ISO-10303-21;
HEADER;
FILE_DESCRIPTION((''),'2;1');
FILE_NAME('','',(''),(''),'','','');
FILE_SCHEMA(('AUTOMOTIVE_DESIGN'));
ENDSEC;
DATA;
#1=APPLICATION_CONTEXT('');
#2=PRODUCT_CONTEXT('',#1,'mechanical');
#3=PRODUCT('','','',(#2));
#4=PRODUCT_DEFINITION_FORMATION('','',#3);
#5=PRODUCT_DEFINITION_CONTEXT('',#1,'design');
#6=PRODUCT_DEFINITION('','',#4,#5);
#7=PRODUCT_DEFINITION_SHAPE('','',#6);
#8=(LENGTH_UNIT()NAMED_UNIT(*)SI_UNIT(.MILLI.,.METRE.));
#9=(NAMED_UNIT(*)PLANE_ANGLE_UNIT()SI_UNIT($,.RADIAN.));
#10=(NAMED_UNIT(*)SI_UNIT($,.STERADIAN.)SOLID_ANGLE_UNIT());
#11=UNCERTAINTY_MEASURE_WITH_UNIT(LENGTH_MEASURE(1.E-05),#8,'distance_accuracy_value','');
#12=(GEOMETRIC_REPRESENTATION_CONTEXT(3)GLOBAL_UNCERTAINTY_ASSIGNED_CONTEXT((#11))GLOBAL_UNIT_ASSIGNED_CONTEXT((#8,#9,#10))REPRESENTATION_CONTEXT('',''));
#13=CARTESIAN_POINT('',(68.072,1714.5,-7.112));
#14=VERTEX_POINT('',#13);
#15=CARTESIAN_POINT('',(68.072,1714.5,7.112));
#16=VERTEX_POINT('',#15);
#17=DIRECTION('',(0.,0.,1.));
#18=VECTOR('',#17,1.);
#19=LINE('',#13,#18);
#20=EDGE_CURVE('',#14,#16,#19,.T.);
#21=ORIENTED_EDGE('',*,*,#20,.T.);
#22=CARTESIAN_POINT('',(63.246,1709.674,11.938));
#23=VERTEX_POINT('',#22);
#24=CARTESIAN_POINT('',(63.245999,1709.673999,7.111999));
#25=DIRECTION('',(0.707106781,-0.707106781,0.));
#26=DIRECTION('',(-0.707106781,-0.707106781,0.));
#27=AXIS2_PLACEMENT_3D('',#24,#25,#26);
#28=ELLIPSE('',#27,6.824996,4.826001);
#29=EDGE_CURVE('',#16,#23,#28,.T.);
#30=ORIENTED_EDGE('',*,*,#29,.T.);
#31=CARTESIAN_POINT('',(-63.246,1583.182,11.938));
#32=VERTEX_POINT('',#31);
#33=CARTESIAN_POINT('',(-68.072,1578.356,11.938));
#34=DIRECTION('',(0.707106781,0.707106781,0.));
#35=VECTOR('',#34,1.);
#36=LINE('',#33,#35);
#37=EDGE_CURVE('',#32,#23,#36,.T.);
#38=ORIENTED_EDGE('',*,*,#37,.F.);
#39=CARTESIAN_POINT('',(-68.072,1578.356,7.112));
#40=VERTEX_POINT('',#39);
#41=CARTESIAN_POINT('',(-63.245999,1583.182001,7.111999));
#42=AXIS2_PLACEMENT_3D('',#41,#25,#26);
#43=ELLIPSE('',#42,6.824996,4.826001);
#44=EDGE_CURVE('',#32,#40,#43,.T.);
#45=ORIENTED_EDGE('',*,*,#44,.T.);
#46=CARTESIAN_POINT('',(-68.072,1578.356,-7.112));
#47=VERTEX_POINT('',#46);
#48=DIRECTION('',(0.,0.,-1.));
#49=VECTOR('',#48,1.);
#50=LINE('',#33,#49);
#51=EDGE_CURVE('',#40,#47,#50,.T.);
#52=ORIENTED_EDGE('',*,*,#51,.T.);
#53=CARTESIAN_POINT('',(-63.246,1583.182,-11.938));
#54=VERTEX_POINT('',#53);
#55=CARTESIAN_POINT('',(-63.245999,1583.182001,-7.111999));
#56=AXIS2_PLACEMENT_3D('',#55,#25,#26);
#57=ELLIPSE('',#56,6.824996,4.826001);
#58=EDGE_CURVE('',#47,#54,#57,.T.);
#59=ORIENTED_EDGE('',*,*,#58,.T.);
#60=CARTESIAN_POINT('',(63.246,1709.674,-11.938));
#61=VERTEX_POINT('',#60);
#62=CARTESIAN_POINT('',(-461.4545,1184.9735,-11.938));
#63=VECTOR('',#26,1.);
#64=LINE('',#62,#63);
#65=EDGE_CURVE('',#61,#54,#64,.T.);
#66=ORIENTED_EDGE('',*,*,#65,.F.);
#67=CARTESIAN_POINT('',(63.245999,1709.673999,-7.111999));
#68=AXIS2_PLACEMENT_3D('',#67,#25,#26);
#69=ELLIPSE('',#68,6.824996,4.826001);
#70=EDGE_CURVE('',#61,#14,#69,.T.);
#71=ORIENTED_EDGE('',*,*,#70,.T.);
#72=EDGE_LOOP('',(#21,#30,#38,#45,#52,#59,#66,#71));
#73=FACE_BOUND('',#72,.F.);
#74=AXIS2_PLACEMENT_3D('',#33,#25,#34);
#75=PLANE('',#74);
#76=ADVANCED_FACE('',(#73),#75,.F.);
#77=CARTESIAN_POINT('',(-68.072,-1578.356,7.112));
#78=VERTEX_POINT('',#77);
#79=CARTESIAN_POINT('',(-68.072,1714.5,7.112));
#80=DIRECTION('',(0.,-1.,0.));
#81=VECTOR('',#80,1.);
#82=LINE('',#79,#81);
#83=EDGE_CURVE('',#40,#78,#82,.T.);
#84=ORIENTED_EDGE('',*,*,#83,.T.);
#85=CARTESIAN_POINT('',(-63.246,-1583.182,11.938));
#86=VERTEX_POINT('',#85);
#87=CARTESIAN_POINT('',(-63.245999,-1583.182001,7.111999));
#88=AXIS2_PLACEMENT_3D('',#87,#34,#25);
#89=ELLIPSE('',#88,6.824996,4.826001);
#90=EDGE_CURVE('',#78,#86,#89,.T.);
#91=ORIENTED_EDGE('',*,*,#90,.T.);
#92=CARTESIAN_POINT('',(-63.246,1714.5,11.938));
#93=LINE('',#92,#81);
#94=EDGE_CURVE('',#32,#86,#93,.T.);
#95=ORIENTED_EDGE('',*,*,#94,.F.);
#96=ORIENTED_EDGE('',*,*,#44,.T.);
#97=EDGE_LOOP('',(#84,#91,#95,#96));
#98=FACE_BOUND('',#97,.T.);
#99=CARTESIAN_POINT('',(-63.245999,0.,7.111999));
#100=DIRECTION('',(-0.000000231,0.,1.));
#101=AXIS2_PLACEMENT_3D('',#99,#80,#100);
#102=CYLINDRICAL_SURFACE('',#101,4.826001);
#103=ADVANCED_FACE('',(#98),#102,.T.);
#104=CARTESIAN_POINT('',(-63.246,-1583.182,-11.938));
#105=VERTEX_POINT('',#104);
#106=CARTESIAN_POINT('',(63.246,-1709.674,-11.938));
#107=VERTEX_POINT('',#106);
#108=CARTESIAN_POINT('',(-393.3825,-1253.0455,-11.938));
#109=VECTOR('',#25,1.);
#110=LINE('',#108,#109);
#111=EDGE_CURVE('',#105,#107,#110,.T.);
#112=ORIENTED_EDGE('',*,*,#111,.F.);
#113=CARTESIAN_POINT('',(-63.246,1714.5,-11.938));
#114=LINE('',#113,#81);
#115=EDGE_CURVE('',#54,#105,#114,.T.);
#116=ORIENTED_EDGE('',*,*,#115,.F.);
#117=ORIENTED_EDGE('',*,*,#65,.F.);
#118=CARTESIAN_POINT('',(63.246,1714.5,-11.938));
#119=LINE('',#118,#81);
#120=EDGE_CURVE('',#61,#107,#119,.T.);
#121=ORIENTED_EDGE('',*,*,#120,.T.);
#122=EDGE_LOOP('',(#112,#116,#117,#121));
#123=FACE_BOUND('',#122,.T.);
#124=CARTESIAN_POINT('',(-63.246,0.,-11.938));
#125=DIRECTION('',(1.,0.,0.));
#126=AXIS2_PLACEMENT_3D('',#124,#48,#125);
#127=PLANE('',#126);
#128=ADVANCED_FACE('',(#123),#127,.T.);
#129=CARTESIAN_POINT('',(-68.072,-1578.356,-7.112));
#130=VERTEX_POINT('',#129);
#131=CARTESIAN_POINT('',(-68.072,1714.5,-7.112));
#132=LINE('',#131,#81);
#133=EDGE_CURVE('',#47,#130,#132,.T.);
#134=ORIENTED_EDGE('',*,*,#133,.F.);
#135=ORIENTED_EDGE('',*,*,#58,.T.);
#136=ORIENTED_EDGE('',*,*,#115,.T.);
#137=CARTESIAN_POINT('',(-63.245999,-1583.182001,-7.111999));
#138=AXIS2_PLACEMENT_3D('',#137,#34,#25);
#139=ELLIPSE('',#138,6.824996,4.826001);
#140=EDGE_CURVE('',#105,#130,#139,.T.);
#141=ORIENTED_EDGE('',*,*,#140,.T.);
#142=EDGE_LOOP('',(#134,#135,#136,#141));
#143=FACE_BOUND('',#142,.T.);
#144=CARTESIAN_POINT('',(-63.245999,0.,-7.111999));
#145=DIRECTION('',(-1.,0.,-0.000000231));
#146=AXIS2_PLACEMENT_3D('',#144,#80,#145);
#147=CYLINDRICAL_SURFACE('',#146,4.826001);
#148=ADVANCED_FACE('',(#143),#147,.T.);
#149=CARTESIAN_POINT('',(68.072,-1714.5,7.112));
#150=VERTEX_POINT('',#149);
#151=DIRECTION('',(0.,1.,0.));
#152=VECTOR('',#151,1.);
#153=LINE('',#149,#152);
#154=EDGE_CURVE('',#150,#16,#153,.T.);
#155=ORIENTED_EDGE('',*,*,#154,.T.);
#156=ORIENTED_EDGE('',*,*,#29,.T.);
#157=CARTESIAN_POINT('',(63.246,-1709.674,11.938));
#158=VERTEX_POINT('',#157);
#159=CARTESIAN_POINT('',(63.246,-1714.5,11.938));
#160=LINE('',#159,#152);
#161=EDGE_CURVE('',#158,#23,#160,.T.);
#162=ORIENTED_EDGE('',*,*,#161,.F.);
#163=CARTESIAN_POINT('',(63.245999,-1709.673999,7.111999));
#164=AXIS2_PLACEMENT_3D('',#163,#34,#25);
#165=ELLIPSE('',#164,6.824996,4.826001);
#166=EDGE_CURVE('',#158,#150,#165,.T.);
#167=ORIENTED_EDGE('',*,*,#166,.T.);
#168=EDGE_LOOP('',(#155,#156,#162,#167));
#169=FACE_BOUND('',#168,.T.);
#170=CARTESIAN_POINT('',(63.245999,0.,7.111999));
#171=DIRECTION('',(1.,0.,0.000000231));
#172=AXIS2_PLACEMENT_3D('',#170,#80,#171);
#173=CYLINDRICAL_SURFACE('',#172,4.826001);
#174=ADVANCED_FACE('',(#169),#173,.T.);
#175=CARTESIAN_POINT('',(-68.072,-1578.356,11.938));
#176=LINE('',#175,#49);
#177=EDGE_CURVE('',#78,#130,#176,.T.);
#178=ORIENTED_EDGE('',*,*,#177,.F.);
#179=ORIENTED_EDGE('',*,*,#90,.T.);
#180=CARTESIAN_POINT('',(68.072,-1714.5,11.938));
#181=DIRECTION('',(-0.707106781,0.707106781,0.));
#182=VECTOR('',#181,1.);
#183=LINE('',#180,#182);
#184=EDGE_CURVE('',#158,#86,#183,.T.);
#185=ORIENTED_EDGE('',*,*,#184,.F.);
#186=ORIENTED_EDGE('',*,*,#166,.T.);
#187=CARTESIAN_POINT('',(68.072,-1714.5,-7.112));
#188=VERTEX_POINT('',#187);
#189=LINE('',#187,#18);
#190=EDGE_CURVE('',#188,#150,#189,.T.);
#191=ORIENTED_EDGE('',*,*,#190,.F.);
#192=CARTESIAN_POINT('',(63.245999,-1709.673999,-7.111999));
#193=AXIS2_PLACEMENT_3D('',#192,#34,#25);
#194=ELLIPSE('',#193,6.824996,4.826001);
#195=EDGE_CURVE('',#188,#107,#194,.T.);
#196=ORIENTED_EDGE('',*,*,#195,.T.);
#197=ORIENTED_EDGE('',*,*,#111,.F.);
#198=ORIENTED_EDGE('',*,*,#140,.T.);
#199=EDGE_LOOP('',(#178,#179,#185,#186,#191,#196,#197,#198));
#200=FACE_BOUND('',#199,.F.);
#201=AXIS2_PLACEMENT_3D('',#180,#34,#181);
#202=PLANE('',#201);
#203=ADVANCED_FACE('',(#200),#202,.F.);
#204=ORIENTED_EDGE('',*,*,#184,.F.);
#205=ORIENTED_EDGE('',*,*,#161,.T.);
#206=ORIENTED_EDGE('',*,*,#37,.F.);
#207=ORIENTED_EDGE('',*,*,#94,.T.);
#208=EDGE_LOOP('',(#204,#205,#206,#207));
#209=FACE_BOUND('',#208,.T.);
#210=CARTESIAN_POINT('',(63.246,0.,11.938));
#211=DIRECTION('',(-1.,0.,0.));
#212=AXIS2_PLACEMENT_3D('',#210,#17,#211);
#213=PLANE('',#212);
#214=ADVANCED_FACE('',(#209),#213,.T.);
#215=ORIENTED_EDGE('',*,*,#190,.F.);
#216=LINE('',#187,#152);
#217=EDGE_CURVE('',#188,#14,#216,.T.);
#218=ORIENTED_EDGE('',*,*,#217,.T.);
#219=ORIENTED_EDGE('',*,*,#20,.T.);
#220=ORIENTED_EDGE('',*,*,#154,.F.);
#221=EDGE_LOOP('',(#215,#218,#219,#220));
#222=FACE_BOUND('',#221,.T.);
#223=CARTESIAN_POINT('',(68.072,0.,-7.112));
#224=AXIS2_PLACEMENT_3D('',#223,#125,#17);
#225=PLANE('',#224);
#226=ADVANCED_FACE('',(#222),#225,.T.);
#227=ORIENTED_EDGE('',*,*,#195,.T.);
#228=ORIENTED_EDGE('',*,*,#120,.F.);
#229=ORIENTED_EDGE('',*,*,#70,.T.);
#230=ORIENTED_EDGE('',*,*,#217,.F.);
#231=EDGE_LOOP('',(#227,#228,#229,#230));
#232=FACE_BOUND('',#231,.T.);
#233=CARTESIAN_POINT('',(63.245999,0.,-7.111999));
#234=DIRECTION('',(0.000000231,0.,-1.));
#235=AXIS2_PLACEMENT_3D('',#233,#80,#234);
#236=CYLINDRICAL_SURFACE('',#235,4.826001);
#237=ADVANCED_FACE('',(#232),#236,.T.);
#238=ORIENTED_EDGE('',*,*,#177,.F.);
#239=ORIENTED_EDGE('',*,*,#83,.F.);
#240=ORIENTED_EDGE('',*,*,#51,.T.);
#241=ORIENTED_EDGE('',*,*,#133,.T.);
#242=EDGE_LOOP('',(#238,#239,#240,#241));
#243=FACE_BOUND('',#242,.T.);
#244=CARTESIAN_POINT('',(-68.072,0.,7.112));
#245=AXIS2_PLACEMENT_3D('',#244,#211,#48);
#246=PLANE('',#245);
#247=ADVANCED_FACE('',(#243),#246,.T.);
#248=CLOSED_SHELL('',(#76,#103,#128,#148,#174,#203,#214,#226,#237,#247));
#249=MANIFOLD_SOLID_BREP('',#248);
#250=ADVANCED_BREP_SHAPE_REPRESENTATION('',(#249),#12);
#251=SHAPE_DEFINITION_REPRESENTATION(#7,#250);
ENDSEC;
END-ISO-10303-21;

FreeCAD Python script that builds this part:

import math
import FreeCAD as App
import Part
import Sketcher

V = App.Vector
Q = App.Units.Quantity


def add_polygon(sketch, points):
    """Adds a closed chain of lines whose ends are joined by coincident constraints."""
    first, n = sketch.GeometryCount, len(points)
    for a, b in zip(points, points[1:] + points[:1]):
        sketch.addGeometry(Part.LineSegment(App.Vector(*a, 0), App.Vector(*b, 0)), False)
    for i in range(n):
        sketch.addConstraint(Sketcher.Constraint("Coincident", first + i, 2, first + (i + 1) % n, 1))

doc = App.newDocument("Part")
params = doc.addObject("Spreadsheet::Sheet", "Params")
for row, (alias, value) in enumerate([
    ("sketch1_radius", "0.19 in"),
    ("sketch1_width", "4.98 in"),
    ("sketch1_height", "0.56 in"),
    ("pad1_length", "135 in"),
    ("sketch2_width", "5.36 in"),
], start=1):
    params.set(f"A{row}", alias)
    params.set(f"B{row}", "=" + value)
    params.setAlias(f"B{row}", alias)

body = doc.addObject("PartDesign::Body", "Body")

sketch1 = body.newObject("Sketcher::SketchObject", "Sketch")
sketch1.AttachmentSupport = (doc.getObject("XZ_Plane"), [""])
sketch1.MapMode = "FlatFace"
sketch1.addGeometry(Part.LineSegment(V(63.2, 11.9, 0), V(-63.2, 11.9, 0)), False)
sketch1.addGeometry(Part.ArcOfCircle(Part.Circle(V(-63.2, 7.1, 0), V(0, 0, 1), 4.8), math.radians(90), math.radians(180)), False)
sketch1.addGeometry(Part.LineSegment(V(-68.1, 7.1, 0), V(-68.1, -7.1, 0)), False)
sketch1.addGeometry(Part.ArcOfCircle(Part.Circle(V(-63.2, -7.1, 0), V(0, 0, 1), 4.8), math.radians(-180), math.radians(-90)), False)
sketch1.addGeometry(Part.LineSegment(V(-63.2, -11.9, 0), V(63.2, -11.9, 0)), False)
sketch1.addGeometry(Part.ArcOfCircle(Part.Circle(V(63.2, -7.1, 0), V(0, 0, 1), 4.8), math.radians(-90), math.radians(0)), False)
sketch1.addGeometry(Part.LineSegment(V(68.1, -7.1, 0), V(68.1, 7.1, 0)), False)
sketch1.addGeometry(Part.ArcOfCircle(Part.Circle(V(63.2, 7.1, 0), V(0, 0, 1), 4.8), math.radians(0), math.radians(90)), False)
sketch1.addConstraint(Sketcher.Constraint("Tangent", 0, 2, 1, 1))
sketch1.addConstraint(Sketcher.Constraint("Tangent", 1, 2, 2, 1))
sketch1.addConstraint(Sketcher.Constraint("Tangent", 2, 2, 3, 1))
sketch1.addConstraint(Sketcher.Constraint("Tangent", 3, 2, 4, 1))
sketch1.addConstraint(Sketcher.Constraint("Tangent", 4, 2, 5, 1))
sketch1.addConstraint(Sketcher.Constraint("Tangent", 5, 2, 6, 1))
sketch1.addConstraint(Sketcher.Constraint("Tangent", 6, 2, 7, 1))
sketch1.addConstraint(Sketcher.Constraint("Tangent", 7, 2, 0, 1))
sketch1.addConstraint(Sketcher.Constraint("Horizontal", 0))
sketch1.addConstraint(Sketcher.Constraint("Vertical", 2))
sketch1.addConstraint(Sketcher.Constraint("Horizontal", 4))
sketch1.addConstraint(Sketcher.Constraint("Vertical", 6))
sketch1.addConstraint(Sketcher.Constraint("Equal", 1, 3))
sketch1.addConstraint(Sketcher.Constraint("Equal", 3, 5))
sketch1.addConstraint(Sketcher.Constraint("Equal", 5, 7))
sketch1.addConstraint(Sketcher.Constraint("Symmetric", 1, 3, 5, 3, -1, 1))
sketch1.addConstraint(Sketcher.Constraint("Radius", 1, Q("0.19 in")))
sketch1.addConstraint(Sketcher.Constraint("DistanceX", 0, 2, 0, 1, Q("4.98 in")))
sketch1.addConstraint(Sketcher.Constraint("DistanceY", 2, 2, 2, 1, Q("0.56 in")))
sketch1.setExpression("Constraints[16]", "Params.sketch1_radius")
sketch1.setExpression("Constraints[17]", "Params.sketch1_width")
sketch1.setExpression("Constraints[18]", "Params.sketch1_height")
pad1 = body.newObject("PartDesign::Pad", "Pad")
pad1.Profile = sketch1
pad1.setExpression("Length", "Params.pad1_length")
pad1.Midplane = True

sketch2 = body.newObject("Sketcher::SketchObject", "Sketch001")
sketch2.AttachmentSupport = (doc.getObject("XY_Plane"), [""])
sketch2.MapMode = "FlatFace"
sketch2.AttachmentOffset = App.Placement(V(0, 0, 0.47 * 25.4), App.Rotation())
add_polygon(sketch2, [(68, -1714), (-68, -1578), (-68, -1714)])
add_polygon(sketch2, [(-68, 1714), (-68, 1578), (68, 1714)])
sketch2.addConstraint(Sketcher.Constraint("Vertical", 1))
sketch2.addConstraint(Sketcher.Constraint("Horizontal", 2))
sketch2.addConstraint(Sketcher.Constraint("Vertical", 3))
sketch2.addConstraint(Sketcher.Constraint("Horizontal", 5))
sketch2.addConstraint(Sketcher.Constraint("Symmetric", 1, 2, 4, 2, -1, 1))
sketch2.addConstraint(Sketcher.Constraint("Symmetric", 0, 2, 3, 2, -1))
sketch2.addConstraint(Sketcher.Constraint("Perpendicular", 0, 4))
sketch2.addConstraint(Sketcher.Constraint("Vertical", 2, 2, 4, 2))
sketch2.addConstraint(Sketcher.Constraint("DistanceY", 2, 2, 4, 2, Q("135 in")))
sketch2.addConstraint(Sketcher.Constraint("DistanceX", 2, 1, 2, 2, Q("5.36 in")))
sketch2.setExpression("Constraints[15]", "Params.sketch2_width")
pocket1 = body.newObject("PartDesign::Pocket", "Pocket")
pocket1.Profile = sketch2
pocket1.Type = "ThroughAll"

doc.recompute()
